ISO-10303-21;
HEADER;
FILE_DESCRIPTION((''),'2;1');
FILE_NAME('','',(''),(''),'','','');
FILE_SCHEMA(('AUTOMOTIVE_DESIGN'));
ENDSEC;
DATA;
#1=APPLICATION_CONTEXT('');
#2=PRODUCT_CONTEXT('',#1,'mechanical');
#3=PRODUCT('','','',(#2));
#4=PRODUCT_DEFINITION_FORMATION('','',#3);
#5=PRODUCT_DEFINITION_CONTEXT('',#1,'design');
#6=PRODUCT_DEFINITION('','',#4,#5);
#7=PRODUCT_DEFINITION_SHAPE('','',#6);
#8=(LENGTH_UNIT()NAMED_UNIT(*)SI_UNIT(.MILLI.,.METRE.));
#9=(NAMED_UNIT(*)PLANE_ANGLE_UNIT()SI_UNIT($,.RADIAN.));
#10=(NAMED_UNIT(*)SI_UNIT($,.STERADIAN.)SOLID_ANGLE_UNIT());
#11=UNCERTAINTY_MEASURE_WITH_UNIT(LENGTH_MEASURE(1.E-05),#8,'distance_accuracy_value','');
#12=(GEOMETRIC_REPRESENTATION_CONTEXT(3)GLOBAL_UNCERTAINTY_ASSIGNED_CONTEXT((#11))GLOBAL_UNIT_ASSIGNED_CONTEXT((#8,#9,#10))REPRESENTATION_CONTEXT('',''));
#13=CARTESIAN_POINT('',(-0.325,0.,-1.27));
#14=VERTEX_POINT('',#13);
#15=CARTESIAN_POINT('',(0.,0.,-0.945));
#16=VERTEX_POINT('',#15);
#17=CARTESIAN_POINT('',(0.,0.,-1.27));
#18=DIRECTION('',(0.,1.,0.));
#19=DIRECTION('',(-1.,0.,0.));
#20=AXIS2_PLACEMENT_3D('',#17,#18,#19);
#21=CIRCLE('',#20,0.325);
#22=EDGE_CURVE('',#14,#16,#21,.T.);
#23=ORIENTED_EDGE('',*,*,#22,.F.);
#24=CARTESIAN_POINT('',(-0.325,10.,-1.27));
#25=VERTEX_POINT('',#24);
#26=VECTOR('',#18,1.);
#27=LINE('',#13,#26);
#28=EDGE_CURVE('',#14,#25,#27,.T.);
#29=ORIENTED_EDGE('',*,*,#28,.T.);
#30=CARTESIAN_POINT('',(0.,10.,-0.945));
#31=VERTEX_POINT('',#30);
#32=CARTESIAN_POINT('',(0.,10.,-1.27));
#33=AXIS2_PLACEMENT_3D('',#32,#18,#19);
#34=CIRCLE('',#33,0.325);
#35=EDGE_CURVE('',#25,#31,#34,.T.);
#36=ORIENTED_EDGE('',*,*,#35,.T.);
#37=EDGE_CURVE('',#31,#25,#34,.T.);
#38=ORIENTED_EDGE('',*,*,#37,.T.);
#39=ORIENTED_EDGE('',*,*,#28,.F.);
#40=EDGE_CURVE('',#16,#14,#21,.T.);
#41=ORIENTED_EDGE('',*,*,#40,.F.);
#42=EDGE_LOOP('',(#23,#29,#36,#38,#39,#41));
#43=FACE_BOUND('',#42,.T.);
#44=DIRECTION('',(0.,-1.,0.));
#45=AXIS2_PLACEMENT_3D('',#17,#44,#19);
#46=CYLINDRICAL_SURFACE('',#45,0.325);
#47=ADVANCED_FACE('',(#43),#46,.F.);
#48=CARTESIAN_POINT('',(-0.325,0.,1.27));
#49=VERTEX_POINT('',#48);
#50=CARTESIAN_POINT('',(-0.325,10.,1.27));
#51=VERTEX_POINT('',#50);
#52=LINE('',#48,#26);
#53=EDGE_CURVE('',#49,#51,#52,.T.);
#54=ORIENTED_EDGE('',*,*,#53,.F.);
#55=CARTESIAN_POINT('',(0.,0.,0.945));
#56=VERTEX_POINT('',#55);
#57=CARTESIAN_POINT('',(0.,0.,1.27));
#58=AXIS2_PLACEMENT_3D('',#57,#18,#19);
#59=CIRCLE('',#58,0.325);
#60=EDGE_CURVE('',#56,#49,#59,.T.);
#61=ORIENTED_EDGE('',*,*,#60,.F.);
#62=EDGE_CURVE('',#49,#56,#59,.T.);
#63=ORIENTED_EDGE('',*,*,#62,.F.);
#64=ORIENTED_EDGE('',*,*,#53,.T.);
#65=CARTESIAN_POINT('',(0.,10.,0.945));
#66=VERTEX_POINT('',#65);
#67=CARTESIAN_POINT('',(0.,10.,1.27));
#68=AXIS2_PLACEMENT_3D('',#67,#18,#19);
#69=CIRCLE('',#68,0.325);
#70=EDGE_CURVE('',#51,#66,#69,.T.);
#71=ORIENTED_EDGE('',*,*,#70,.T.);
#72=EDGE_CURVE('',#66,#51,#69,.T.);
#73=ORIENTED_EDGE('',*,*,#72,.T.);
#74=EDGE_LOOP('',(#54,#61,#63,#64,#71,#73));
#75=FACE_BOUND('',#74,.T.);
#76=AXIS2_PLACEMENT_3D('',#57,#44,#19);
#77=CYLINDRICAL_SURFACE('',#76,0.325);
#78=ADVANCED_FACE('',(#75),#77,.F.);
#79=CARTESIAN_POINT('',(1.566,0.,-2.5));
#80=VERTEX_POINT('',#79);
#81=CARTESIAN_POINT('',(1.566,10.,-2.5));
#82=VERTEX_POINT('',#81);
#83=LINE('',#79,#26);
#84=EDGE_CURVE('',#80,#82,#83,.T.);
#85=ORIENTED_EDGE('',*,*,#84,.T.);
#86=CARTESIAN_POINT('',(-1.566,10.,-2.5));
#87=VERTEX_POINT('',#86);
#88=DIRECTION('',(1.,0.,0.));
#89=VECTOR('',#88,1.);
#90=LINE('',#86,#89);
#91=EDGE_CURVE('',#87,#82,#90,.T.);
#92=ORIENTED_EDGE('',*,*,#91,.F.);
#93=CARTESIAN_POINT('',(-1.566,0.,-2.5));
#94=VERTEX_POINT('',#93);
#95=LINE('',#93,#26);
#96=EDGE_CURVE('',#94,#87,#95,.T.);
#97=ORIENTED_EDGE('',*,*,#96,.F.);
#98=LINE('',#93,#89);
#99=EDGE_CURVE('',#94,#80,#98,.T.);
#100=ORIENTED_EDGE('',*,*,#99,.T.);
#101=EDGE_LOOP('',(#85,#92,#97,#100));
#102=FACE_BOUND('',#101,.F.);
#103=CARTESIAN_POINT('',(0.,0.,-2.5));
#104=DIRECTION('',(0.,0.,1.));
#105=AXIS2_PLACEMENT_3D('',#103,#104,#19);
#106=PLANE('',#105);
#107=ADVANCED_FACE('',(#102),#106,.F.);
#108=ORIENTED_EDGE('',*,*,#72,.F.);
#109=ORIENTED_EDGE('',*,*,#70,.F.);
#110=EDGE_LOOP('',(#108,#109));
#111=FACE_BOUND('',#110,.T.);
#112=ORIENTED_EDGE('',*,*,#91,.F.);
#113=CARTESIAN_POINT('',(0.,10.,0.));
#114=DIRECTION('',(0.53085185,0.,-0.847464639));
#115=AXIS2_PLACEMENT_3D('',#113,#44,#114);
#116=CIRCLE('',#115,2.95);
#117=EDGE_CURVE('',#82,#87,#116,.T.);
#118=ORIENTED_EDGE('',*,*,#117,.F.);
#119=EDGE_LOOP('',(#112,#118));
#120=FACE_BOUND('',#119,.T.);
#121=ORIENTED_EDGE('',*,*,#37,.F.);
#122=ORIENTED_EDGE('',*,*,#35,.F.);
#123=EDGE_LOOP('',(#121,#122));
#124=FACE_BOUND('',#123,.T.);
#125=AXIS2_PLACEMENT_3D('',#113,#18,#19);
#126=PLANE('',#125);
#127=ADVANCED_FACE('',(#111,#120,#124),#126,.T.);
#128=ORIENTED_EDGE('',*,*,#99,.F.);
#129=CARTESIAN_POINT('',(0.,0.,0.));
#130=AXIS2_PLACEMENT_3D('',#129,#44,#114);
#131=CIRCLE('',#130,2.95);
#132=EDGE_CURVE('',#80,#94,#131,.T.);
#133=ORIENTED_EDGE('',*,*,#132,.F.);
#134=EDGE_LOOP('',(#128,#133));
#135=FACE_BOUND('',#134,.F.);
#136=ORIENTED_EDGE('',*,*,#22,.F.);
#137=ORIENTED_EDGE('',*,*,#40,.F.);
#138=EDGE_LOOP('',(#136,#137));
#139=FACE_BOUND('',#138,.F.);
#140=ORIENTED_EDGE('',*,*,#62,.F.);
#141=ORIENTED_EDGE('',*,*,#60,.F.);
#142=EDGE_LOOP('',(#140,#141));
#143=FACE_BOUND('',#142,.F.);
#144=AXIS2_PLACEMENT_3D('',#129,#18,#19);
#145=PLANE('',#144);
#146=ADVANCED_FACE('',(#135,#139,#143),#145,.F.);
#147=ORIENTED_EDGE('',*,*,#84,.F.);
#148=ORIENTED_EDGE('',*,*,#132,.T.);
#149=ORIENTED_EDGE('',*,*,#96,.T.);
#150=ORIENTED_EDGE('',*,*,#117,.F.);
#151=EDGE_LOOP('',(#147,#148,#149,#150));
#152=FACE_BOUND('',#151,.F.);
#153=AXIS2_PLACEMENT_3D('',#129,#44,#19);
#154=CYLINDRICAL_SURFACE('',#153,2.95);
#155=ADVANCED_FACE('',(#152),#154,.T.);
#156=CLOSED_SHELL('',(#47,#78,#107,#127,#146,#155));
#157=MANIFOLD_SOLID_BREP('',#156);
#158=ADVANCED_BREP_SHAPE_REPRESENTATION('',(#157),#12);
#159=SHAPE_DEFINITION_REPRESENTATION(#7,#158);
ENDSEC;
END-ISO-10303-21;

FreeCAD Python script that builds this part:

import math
import FreeCAD as App
import Part
import Sketcher

V = App.Vector
Q = App.Units.Quantity

doc = App.newDocument("Part")
body = doc.addObject("PartDesign::Body", "Body")

sketch1 = doc.addObject("Sketcher::SketchObject", "Sketch")
body.addObject(sketch1)
sketch1.AttachmentSupport = (doc.XZ_Plane, [""])
sketch1.MapMode = "FlatFace"
sketch1.addGeometry(Part.ArcOfCircle(Part.Circle(V(0, 0, 0), V(0, 0, 1), 2.95), math.radians(-58), math.radians(238)), False)
sketch1.addGeometry(Part.LineSegment(V(-1.57, -2.5, 0), V(1.57, -2.5, 0)), False)
sketch1.addGeometry(Part.Circle(V(0, -1.27, 0), V(0, 0, 1), 0.33), False)
sketch1.addGeometry(Part.Circle(V(0, 1.27, 0), V(0, 0, 1), 0.33), False)
sketch1.addConstraint(Sketcher.Constraint("Coincident", 0, 1, 1, 2))
sketch1.addConstraint(Sketcher.Constraint("Coincident", 1, 1, 0, 2))
sketch1.addConstraint(Sketcher.Constraint("Horizontal", 1))
sketch1.addConstraint(Sketcher.Constraint("Coincident", 0, 3, -1, 1))
sketch1.addConstraint(Sketcher.Constraint("Equal", 2, 3))
sketch1.addConstraint(Sketcher.Constraint("Symmetric", 2, 3, 3, 3, -1, 1))
sketch1.addConstraint(Sketcher.Constraint("PointOnObject", 2, 3, -2))
sketch1.addConstraint(Sketcher.Constraint("Diameter", 2, Q("0.65 mm")))
sketch1.addConstraint(Sketcher.Constraint("Radius", 0, Q("2.95 mm")))
sketch1.addConstraint(Sketcher.Constraint("DistanceY", 2, 3, -1, 1, Q("1.27 mm")))
sketch1.addConstraint(Sketcher.Constraint("DistanceY", 0, 1, -1, 1, Q("2.5 mm")))
pad1 = doc.addObject("PartDesign::Pad", "Pad")
body.addObject(pad1)
pad1.Profile = sketch1
pad1.Length = 10
pad1.Reversed = True

doc.recompute()
